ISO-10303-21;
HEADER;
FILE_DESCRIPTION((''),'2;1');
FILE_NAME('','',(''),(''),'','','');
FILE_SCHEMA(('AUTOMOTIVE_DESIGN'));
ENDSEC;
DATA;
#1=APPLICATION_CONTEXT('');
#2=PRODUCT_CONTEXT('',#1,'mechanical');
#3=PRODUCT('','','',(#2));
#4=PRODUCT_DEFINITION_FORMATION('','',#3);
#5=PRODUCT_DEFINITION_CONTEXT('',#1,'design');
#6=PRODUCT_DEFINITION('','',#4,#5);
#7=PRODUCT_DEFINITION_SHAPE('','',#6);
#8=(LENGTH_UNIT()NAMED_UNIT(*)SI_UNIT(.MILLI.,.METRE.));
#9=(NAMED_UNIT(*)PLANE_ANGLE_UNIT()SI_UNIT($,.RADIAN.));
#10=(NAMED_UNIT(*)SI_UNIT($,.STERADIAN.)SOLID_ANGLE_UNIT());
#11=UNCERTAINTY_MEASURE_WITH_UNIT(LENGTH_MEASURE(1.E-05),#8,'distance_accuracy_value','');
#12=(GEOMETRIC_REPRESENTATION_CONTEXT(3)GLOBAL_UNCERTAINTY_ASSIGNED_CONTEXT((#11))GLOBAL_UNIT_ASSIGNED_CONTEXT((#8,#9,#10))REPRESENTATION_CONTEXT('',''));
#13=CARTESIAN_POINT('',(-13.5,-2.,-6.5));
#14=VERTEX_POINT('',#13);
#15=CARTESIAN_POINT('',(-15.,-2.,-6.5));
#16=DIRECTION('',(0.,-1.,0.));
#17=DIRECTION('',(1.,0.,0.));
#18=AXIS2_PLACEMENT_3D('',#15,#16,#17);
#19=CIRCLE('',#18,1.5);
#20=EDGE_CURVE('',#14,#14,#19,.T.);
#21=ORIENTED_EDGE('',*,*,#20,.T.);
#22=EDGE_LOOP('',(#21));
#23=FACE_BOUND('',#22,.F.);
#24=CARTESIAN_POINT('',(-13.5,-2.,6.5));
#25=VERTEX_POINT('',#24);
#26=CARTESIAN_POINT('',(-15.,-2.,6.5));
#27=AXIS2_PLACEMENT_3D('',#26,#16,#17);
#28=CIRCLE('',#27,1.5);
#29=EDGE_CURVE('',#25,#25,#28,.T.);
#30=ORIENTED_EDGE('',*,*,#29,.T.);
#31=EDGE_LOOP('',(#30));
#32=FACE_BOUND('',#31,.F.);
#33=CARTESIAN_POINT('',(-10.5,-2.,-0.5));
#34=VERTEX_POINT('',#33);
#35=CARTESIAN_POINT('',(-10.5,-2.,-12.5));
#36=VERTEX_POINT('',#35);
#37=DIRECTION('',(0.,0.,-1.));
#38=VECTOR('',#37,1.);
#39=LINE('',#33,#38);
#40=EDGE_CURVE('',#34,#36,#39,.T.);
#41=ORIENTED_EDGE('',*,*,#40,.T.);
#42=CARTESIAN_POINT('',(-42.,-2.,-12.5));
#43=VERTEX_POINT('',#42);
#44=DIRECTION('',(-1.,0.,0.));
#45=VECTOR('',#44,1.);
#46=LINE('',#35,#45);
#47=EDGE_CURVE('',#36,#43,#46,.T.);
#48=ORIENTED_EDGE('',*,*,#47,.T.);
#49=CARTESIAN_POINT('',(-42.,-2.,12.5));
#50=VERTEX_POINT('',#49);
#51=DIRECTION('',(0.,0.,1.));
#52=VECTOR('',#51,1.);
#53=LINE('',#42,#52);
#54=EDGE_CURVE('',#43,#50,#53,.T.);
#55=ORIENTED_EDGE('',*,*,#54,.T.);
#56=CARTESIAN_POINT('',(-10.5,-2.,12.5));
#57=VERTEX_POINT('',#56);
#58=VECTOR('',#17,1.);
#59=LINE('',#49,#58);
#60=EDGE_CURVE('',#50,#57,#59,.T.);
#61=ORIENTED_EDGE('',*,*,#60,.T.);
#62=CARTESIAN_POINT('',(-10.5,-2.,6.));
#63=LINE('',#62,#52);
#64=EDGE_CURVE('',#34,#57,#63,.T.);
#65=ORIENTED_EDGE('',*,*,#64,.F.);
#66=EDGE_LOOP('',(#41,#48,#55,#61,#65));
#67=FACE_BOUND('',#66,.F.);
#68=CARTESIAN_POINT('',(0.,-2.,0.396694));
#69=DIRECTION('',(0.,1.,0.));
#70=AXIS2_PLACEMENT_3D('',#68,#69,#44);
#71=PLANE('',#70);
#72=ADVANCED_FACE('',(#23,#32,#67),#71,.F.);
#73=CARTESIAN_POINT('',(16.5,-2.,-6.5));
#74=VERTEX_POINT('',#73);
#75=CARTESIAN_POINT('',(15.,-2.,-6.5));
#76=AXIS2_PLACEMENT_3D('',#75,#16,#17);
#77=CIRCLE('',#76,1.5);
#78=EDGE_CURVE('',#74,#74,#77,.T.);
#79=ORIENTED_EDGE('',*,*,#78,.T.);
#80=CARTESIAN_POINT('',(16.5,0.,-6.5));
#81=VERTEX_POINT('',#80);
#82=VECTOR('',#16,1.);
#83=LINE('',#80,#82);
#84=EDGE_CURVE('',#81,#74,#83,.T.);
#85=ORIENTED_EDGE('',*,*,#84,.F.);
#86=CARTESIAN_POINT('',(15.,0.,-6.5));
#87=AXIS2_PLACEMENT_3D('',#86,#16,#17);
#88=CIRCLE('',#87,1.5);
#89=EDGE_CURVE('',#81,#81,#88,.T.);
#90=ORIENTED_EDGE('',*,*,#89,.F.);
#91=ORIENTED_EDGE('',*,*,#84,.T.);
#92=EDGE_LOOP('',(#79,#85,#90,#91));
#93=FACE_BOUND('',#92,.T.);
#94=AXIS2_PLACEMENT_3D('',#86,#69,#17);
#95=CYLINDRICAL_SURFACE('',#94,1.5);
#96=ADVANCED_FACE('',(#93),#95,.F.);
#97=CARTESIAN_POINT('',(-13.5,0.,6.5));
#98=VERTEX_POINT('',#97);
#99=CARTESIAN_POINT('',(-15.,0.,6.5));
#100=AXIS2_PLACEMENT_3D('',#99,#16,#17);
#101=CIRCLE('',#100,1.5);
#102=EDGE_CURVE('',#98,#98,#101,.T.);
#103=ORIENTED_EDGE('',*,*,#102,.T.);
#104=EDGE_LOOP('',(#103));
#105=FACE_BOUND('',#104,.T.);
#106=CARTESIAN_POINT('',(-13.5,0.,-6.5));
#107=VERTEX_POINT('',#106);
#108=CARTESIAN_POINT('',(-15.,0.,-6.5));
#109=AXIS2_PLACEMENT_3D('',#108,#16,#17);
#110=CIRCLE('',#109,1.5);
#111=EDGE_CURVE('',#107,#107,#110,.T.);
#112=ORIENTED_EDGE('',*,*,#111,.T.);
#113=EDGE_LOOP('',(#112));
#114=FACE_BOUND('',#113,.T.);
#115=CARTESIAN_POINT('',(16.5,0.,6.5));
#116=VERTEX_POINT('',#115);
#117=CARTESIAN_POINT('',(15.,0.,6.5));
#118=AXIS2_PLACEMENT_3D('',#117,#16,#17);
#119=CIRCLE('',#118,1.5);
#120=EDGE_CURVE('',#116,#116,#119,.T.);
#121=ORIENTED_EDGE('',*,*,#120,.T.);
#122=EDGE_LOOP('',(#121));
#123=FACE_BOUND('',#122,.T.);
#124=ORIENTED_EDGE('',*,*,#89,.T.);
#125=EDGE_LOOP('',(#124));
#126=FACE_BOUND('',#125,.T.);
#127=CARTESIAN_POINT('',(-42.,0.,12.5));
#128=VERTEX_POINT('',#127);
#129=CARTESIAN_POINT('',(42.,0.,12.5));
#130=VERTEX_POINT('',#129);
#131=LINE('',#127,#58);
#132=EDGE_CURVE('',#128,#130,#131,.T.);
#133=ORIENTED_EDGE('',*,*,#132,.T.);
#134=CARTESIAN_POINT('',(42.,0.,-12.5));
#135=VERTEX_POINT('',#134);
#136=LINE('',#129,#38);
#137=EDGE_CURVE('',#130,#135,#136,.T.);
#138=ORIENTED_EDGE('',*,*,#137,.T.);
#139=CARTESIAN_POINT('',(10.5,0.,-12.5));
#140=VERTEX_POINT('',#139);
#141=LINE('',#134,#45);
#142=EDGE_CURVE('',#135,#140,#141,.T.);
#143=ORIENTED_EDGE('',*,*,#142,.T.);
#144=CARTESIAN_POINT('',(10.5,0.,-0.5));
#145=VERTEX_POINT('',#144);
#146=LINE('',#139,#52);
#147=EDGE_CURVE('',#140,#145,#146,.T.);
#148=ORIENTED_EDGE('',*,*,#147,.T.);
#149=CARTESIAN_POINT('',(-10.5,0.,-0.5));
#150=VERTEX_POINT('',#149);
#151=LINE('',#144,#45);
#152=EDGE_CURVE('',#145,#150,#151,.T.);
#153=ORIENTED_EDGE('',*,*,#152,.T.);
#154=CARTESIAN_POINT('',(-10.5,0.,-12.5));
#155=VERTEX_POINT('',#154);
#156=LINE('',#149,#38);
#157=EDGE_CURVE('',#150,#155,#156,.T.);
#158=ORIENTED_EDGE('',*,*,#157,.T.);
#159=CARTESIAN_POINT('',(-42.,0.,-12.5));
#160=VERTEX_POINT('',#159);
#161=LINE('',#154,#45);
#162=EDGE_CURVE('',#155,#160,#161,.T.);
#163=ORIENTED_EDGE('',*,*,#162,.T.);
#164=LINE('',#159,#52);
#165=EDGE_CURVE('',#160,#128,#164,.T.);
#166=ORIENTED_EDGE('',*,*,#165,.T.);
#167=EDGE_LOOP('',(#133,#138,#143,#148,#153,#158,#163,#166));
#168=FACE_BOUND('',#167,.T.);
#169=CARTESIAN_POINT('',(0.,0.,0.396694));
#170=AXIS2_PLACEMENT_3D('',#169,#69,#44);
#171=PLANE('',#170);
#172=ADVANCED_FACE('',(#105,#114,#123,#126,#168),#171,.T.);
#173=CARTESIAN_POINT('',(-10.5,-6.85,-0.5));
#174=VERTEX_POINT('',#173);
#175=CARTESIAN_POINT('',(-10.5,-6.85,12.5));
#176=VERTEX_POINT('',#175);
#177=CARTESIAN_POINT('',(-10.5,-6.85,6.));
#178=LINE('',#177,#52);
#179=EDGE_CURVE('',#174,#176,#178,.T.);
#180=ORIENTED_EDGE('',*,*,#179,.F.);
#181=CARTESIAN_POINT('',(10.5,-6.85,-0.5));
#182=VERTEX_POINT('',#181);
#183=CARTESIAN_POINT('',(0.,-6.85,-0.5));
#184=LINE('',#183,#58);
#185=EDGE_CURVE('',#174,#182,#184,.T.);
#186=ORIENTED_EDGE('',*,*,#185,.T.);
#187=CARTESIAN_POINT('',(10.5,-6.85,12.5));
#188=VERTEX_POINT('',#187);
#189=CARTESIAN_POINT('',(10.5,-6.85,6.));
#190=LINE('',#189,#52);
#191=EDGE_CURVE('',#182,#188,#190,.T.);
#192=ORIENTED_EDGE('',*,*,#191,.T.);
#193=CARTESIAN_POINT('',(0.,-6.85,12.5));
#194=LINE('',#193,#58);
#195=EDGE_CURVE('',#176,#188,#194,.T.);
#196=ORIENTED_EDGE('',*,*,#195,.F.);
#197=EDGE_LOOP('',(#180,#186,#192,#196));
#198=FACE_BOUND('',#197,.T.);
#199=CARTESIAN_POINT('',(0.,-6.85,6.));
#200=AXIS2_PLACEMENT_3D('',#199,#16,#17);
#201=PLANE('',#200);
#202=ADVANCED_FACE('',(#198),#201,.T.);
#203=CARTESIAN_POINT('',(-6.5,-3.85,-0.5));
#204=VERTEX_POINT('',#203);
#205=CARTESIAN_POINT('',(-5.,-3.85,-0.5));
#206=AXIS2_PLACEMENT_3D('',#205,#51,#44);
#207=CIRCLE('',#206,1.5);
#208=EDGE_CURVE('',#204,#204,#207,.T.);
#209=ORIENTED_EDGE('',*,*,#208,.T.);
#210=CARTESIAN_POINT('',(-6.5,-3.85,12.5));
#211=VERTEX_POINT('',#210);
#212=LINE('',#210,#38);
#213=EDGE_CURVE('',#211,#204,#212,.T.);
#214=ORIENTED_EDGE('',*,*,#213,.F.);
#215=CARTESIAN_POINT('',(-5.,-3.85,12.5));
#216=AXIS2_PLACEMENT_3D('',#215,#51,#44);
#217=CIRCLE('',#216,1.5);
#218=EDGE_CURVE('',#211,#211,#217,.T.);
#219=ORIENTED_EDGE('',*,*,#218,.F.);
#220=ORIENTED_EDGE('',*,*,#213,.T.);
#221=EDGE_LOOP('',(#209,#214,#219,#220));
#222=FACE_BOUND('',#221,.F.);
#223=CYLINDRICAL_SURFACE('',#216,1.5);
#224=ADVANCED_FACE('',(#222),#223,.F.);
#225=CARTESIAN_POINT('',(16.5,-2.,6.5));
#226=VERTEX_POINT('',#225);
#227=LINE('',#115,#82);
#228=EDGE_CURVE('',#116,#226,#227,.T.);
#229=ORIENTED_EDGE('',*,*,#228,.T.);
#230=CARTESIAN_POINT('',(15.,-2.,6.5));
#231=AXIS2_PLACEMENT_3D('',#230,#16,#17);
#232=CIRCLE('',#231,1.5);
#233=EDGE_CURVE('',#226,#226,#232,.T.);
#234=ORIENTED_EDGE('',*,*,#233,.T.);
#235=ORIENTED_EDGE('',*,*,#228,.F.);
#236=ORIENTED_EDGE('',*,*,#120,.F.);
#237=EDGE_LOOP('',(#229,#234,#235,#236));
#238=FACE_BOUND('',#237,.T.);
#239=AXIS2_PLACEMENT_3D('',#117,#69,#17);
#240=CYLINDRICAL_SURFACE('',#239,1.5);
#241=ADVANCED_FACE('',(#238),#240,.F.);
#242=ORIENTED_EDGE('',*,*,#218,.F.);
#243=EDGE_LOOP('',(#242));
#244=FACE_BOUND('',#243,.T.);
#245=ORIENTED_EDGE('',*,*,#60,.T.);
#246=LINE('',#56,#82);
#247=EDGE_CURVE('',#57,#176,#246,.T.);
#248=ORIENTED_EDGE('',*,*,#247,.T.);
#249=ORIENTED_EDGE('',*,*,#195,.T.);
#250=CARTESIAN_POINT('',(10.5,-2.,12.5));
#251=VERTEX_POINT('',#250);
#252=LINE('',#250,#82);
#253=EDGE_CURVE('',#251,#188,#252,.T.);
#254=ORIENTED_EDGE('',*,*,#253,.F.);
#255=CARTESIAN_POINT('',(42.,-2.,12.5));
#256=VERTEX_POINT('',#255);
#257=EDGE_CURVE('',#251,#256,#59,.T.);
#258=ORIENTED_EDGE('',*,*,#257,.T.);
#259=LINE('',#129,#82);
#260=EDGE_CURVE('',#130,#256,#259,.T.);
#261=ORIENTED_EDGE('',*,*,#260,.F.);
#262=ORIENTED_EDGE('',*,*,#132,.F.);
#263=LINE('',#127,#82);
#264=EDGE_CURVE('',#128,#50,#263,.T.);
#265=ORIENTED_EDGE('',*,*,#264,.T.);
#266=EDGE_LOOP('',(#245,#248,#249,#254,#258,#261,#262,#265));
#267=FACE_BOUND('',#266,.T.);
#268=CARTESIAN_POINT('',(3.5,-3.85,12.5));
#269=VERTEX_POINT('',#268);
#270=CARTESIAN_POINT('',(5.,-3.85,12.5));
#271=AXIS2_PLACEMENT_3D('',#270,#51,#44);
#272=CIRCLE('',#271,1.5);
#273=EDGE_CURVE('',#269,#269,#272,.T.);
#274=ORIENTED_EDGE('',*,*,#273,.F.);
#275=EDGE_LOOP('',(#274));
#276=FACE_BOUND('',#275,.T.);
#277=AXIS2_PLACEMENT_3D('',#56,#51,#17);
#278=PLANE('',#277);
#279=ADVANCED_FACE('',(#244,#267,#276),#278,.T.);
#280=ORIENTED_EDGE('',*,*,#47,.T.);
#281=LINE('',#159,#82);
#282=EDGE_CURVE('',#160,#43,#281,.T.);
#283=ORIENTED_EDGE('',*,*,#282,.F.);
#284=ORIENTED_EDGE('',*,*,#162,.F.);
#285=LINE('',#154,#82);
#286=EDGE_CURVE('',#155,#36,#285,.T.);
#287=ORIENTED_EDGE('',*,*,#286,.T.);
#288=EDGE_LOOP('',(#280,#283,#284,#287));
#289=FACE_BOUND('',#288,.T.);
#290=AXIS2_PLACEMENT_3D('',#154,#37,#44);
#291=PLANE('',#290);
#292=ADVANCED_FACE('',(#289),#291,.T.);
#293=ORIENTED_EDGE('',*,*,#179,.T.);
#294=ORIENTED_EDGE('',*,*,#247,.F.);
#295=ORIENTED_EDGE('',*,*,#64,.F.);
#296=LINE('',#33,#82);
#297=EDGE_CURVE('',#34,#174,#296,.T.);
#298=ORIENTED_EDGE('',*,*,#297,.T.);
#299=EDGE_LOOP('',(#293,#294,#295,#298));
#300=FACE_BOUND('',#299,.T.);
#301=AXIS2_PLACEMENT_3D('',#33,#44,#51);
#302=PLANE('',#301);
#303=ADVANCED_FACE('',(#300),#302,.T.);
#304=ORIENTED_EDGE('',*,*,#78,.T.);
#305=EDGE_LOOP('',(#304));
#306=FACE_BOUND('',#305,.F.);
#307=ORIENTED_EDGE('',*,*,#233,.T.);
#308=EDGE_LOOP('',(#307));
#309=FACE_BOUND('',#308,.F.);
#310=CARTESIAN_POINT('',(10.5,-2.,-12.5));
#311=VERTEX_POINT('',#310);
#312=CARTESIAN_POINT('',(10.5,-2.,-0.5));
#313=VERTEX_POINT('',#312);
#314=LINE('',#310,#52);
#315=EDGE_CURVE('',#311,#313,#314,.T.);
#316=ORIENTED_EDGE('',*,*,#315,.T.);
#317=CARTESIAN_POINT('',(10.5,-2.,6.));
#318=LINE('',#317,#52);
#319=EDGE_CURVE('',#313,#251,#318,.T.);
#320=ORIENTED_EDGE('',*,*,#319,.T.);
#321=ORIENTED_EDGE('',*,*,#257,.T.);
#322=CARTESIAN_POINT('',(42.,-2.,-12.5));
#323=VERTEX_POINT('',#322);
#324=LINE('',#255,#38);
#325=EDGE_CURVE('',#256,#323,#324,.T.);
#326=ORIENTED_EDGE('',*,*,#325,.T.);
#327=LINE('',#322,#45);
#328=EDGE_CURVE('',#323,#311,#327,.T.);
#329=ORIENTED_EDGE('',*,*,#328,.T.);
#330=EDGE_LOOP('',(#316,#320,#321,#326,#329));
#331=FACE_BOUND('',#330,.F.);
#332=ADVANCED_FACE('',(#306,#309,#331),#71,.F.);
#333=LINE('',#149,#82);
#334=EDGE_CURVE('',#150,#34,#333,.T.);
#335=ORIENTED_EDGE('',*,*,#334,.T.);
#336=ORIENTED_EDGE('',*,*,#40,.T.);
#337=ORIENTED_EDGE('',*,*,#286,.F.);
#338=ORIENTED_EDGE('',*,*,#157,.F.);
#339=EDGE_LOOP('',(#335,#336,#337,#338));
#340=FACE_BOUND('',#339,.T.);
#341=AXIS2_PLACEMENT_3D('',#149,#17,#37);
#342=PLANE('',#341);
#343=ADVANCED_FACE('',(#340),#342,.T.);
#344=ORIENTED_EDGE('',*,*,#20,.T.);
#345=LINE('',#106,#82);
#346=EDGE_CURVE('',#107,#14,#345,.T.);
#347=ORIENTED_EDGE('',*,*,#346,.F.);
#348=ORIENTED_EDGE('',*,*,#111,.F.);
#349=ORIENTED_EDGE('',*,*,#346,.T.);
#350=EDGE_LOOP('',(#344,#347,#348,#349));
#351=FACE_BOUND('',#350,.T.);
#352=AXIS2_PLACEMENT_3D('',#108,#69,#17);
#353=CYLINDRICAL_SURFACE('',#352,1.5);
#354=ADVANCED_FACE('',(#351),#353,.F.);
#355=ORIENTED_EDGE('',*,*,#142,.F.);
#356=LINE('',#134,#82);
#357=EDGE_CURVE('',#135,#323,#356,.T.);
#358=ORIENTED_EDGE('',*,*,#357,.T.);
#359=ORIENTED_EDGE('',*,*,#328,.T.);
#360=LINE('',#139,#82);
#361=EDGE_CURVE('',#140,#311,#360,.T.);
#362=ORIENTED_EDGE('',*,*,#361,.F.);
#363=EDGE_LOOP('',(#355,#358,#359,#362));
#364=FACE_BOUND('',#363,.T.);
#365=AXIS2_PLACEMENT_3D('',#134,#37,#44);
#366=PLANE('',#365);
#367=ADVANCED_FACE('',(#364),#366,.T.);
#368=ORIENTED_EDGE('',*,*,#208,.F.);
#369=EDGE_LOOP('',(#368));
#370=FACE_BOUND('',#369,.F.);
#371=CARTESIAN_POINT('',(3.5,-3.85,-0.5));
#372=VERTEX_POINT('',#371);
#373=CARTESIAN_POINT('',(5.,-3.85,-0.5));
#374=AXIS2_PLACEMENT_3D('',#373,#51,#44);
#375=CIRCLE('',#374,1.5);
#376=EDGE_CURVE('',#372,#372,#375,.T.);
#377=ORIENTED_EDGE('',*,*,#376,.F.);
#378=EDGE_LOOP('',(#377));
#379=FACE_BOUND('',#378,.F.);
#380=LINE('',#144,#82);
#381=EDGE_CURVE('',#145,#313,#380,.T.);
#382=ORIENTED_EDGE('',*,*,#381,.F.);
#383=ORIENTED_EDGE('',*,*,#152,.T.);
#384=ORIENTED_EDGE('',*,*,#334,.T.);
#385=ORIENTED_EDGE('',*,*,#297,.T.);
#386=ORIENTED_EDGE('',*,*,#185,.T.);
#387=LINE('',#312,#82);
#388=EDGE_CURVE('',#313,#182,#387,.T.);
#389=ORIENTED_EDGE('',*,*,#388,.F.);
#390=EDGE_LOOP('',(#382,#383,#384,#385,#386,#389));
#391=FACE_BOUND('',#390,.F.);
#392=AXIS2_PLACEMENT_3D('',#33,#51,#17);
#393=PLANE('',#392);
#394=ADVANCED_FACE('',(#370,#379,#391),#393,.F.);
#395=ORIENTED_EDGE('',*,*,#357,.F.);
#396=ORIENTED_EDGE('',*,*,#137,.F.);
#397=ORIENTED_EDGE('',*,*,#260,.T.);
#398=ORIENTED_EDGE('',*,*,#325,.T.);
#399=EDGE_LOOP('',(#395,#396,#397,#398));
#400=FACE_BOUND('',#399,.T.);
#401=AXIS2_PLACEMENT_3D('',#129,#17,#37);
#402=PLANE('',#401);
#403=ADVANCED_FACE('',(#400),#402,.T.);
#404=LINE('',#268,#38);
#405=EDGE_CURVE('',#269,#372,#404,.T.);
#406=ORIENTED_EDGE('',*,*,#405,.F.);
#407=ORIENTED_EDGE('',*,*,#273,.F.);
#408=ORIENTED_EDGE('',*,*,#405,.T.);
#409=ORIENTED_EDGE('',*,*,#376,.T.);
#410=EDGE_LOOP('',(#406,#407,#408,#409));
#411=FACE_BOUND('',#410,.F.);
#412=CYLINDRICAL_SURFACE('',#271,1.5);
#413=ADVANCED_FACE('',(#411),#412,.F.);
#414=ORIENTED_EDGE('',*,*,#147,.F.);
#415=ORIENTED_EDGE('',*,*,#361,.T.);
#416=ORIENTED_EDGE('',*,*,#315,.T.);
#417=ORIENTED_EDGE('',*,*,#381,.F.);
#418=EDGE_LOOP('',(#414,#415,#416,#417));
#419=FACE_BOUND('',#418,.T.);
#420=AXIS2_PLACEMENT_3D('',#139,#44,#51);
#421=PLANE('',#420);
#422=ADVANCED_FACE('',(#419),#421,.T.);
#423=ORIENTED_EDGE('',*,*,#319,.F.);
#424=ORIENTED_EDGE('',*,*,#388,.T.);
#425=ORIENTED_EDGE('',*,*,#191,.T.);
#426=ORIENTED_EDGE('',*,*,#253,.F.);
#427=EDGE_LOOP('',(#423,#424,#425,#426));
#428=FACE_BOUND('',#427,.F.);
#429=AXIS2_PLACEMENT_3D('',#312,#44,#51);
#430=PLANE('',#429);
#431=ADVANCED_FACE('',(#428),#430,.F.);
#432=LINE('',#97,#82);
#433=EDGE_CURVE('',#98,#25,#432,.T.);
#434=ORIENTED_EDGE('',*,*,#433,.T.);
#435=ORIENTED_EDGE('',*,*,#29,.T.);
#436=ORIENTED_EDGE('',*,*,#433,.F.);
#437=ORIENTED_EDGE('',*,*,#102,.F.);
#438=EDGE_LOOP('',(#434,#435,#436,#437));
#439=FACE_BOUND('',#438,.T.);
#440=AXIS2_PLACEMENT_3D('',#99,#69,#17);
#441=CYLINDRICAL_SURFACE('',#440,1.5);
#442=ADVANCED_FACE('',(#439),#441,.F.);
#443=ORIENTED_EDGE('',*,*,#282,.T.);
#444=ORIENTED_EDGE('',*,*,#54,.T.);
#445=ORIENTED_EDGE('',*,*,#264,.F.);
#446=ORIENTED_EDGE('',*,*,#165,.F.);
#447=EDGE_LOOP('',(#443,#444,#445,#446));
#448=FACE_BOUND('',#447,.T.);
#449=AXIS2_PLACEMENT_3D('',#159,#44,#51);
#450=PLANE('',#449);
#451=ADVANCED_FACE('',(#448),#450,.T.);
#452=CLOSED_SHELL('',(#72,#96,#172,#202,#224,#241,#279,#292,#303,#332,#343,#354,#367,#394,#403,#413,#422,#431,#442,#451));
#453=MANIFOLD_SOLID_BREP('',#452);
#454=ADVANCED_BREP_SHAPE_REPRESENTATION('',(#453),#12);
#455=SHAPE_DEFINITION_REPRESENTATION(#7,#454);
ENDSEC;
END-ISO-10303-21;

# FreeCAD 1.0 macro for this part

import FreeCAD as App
import Part
import Sketcher
from FreeCAD import Vector


def add_polygon(sketch, points):
    """Adds a closed chain of lines whose ends are joined by coincident constraints."""
    first, n = sketch.GeometryCount, len(points)
    for a, b in zip(points, points[1:] + points[:1]):
        sketch.addGeometry(Part.LineSegment(App.Vector(*a, 0), App.Vector(*b, 0)), False)
    for i in range(n):
        sketch.addConstraint(Sketcher.Constraint("Coincident", first + i, 2, first + (i + 1) % n, 1))

doc = App.newDocument("Part")
body = doc.addObject("PartDesign::Body", "Body")

sketch1 = body.newObject("Sketcher::SketchObject", "Sketch")
sketch1.AttachmentSupport = (doc.getObject("XZ_Plane"), [""])
sketch1.MapMode = "FlatFace"
add_polygon(sketch1, [(42, 12.5), (-42, 12.5), (-42, -12.5), (-10.5, -12.5), (-10.5, -0.5), (10.5, -0.5), (10.5, -12.5), (42, -12.5)])
sketch1.addGeometry(Part.Circle(Vector(15, -6.5, 0), Vector(0, 0, 1), 1.5), False)
sketch1.addGeometry(Part.Circle(Vector(-15, -6.5, 0), Vector(0, 0, 1), 1.5), False)
sketch1.addGeometry(Part.Circle(Vector(15, 6.5, 0), Vector(0, 0, 1), 1.5), False)
sketch1.addGeometry(Part.Circle(Vector(-15, 6.5, 0), Vector(0, 0, 1), 1.5), False)
sketch1.addConstraint([
    Sketcher.Constraint("Horizontal", 0),
    Sketcher.Constraint("Vertical", 1),
    Sketcher.Constraint("Horizontal", 2),
    Sketcher.Constraint("Vertical", 3),
    Sketcher.Constraint("Horizontal", 4),
    Sketcher.Constraint("Vertical", 5),
    Sketcher.Constraint("Horizontal", 6),
    Sketcher.Constraint("Vertical", 7),
    Sketcher.Constraint("Equal", 8, 9),
    Sketcher.Constraint("Equal", 9, 10),
    Sketcher.Constraint("Equal", 10, 11),
    Sketcher.Constraint("Symmetric", 9, 3, 10, 3, -1, 1),
    Sketcher.Constraint("Symmetric", 8, 3, 11, 3, -1, 1),
    Sketcher.Constraint("Symmetric", 0, 2, 6, 2, -1, 1),
    Sketcher.Constraint("Symmetric", 8, 3, 9, 3, -2),
    Sketcher.Constraint("Symmetric", 2, 2, 5, 2, -2),
    Sketcher.Constraint("Diameter", 8, 3.0),
    Sketcher.Constraint("DistanceX", 0, 2, 0, 1, 84.0),
    Sketcher.Constraint("DistanceX", 4, 1, 4, 2, 21.0),
    Sketcher.Constraint("DistanceY", 1, 2, 1, 1, 25.0),
    Sketcher.Constraint("DistanceY", 3, 1, 3, 2, 12.0),
    Sketcher.Constraint("DistanceX", -1, 1, 8, 3, 15.0),
    Sketcher.Constraint("DistanceY", 8, 3, 10, 3, 13.0),
])
pad1 = body.newObject("PartDesign::Pad", "Pad")
pad1.Profile = sketch1
pad1.Length = 2

sketch2 = body.newObject("Sketcher::SketchObject", "Sketch001")
sketch2.AttachmentSupport = (doc.getObject("XZ_Plane"), [""])
sketch2.MapMode = "FlatFace"
sketch2.AttachmentOffset = App.Placement(Vector(0, 0, 2), App.Rotation())
add_polygon(sketch2, [(-10, 12), (-10, 0), (10, 0), (10, 12)])
sketch2.addConstraint([
    Sketcher.Constraint("Vertical", 0),
    Sketcher.Constraint("Horizontal", 1),
    Sketcher.Constraint("Vertical", 2),
    Sketcher.Constraint("Horizontal", 3),
    Sketcher.Constraint("DistanceX", 1, 1, 1, 2, 21.0),
    Sketcher.Constraint("DistanceY", 0, 2, 0, 1, 13.0),
    Sketcher.Constraint("DistanceX", 0, 2, -1, 1, 10.5),
    Sketcher.Constraint("DistanceY", 0, 2, -1, 1, 0.5),
])
pad2 = body.newObject("PartDesign::Pad", "Pad001")
pad2.Profile = sketch2
pad2.Length = 4.85

sketch3 = body.newObject("Sketcher::SketchObject", "Sketch002")
sketch3.AttachmentSupport = (doc.getObject("XY_Plane"), [""])
sketch3.MapMode = "FlatFace"
sketch3.AttachmentOffset = App.Placement(Vector(0, 0, 12.5), App.Rotation())
sketch3.addGeometry([
    Part.Circle(Vector(5, -3.9, 0), Vector(0, 0, 1), 1.5),
    Part.Circle(Vector(-5, -3.9, 0), Vector(0, 0, 1), 1.5),
], False)
sketch3.addConstraint([
    Sketcher.Constraint("Equal", 0, 1),
    Sketcher.Constraint("Symmetric", 0, 3, 1, 3, -2),
    Sketcher.Constraint("Diameter", 0, 3.0),
    Sketcher.Constraint("DistanceX", -1, 1, 0, 3, 5.0),
    Sketcher.Constraint("DistanceY", 0, 3, -1, 1, 3.85),
])
pocket1 = body.newObject("PartDesign::Pocket", "Pocket")
pocket1.Profile = sketch3
pocket1.Length = 21

doc.recompute()
